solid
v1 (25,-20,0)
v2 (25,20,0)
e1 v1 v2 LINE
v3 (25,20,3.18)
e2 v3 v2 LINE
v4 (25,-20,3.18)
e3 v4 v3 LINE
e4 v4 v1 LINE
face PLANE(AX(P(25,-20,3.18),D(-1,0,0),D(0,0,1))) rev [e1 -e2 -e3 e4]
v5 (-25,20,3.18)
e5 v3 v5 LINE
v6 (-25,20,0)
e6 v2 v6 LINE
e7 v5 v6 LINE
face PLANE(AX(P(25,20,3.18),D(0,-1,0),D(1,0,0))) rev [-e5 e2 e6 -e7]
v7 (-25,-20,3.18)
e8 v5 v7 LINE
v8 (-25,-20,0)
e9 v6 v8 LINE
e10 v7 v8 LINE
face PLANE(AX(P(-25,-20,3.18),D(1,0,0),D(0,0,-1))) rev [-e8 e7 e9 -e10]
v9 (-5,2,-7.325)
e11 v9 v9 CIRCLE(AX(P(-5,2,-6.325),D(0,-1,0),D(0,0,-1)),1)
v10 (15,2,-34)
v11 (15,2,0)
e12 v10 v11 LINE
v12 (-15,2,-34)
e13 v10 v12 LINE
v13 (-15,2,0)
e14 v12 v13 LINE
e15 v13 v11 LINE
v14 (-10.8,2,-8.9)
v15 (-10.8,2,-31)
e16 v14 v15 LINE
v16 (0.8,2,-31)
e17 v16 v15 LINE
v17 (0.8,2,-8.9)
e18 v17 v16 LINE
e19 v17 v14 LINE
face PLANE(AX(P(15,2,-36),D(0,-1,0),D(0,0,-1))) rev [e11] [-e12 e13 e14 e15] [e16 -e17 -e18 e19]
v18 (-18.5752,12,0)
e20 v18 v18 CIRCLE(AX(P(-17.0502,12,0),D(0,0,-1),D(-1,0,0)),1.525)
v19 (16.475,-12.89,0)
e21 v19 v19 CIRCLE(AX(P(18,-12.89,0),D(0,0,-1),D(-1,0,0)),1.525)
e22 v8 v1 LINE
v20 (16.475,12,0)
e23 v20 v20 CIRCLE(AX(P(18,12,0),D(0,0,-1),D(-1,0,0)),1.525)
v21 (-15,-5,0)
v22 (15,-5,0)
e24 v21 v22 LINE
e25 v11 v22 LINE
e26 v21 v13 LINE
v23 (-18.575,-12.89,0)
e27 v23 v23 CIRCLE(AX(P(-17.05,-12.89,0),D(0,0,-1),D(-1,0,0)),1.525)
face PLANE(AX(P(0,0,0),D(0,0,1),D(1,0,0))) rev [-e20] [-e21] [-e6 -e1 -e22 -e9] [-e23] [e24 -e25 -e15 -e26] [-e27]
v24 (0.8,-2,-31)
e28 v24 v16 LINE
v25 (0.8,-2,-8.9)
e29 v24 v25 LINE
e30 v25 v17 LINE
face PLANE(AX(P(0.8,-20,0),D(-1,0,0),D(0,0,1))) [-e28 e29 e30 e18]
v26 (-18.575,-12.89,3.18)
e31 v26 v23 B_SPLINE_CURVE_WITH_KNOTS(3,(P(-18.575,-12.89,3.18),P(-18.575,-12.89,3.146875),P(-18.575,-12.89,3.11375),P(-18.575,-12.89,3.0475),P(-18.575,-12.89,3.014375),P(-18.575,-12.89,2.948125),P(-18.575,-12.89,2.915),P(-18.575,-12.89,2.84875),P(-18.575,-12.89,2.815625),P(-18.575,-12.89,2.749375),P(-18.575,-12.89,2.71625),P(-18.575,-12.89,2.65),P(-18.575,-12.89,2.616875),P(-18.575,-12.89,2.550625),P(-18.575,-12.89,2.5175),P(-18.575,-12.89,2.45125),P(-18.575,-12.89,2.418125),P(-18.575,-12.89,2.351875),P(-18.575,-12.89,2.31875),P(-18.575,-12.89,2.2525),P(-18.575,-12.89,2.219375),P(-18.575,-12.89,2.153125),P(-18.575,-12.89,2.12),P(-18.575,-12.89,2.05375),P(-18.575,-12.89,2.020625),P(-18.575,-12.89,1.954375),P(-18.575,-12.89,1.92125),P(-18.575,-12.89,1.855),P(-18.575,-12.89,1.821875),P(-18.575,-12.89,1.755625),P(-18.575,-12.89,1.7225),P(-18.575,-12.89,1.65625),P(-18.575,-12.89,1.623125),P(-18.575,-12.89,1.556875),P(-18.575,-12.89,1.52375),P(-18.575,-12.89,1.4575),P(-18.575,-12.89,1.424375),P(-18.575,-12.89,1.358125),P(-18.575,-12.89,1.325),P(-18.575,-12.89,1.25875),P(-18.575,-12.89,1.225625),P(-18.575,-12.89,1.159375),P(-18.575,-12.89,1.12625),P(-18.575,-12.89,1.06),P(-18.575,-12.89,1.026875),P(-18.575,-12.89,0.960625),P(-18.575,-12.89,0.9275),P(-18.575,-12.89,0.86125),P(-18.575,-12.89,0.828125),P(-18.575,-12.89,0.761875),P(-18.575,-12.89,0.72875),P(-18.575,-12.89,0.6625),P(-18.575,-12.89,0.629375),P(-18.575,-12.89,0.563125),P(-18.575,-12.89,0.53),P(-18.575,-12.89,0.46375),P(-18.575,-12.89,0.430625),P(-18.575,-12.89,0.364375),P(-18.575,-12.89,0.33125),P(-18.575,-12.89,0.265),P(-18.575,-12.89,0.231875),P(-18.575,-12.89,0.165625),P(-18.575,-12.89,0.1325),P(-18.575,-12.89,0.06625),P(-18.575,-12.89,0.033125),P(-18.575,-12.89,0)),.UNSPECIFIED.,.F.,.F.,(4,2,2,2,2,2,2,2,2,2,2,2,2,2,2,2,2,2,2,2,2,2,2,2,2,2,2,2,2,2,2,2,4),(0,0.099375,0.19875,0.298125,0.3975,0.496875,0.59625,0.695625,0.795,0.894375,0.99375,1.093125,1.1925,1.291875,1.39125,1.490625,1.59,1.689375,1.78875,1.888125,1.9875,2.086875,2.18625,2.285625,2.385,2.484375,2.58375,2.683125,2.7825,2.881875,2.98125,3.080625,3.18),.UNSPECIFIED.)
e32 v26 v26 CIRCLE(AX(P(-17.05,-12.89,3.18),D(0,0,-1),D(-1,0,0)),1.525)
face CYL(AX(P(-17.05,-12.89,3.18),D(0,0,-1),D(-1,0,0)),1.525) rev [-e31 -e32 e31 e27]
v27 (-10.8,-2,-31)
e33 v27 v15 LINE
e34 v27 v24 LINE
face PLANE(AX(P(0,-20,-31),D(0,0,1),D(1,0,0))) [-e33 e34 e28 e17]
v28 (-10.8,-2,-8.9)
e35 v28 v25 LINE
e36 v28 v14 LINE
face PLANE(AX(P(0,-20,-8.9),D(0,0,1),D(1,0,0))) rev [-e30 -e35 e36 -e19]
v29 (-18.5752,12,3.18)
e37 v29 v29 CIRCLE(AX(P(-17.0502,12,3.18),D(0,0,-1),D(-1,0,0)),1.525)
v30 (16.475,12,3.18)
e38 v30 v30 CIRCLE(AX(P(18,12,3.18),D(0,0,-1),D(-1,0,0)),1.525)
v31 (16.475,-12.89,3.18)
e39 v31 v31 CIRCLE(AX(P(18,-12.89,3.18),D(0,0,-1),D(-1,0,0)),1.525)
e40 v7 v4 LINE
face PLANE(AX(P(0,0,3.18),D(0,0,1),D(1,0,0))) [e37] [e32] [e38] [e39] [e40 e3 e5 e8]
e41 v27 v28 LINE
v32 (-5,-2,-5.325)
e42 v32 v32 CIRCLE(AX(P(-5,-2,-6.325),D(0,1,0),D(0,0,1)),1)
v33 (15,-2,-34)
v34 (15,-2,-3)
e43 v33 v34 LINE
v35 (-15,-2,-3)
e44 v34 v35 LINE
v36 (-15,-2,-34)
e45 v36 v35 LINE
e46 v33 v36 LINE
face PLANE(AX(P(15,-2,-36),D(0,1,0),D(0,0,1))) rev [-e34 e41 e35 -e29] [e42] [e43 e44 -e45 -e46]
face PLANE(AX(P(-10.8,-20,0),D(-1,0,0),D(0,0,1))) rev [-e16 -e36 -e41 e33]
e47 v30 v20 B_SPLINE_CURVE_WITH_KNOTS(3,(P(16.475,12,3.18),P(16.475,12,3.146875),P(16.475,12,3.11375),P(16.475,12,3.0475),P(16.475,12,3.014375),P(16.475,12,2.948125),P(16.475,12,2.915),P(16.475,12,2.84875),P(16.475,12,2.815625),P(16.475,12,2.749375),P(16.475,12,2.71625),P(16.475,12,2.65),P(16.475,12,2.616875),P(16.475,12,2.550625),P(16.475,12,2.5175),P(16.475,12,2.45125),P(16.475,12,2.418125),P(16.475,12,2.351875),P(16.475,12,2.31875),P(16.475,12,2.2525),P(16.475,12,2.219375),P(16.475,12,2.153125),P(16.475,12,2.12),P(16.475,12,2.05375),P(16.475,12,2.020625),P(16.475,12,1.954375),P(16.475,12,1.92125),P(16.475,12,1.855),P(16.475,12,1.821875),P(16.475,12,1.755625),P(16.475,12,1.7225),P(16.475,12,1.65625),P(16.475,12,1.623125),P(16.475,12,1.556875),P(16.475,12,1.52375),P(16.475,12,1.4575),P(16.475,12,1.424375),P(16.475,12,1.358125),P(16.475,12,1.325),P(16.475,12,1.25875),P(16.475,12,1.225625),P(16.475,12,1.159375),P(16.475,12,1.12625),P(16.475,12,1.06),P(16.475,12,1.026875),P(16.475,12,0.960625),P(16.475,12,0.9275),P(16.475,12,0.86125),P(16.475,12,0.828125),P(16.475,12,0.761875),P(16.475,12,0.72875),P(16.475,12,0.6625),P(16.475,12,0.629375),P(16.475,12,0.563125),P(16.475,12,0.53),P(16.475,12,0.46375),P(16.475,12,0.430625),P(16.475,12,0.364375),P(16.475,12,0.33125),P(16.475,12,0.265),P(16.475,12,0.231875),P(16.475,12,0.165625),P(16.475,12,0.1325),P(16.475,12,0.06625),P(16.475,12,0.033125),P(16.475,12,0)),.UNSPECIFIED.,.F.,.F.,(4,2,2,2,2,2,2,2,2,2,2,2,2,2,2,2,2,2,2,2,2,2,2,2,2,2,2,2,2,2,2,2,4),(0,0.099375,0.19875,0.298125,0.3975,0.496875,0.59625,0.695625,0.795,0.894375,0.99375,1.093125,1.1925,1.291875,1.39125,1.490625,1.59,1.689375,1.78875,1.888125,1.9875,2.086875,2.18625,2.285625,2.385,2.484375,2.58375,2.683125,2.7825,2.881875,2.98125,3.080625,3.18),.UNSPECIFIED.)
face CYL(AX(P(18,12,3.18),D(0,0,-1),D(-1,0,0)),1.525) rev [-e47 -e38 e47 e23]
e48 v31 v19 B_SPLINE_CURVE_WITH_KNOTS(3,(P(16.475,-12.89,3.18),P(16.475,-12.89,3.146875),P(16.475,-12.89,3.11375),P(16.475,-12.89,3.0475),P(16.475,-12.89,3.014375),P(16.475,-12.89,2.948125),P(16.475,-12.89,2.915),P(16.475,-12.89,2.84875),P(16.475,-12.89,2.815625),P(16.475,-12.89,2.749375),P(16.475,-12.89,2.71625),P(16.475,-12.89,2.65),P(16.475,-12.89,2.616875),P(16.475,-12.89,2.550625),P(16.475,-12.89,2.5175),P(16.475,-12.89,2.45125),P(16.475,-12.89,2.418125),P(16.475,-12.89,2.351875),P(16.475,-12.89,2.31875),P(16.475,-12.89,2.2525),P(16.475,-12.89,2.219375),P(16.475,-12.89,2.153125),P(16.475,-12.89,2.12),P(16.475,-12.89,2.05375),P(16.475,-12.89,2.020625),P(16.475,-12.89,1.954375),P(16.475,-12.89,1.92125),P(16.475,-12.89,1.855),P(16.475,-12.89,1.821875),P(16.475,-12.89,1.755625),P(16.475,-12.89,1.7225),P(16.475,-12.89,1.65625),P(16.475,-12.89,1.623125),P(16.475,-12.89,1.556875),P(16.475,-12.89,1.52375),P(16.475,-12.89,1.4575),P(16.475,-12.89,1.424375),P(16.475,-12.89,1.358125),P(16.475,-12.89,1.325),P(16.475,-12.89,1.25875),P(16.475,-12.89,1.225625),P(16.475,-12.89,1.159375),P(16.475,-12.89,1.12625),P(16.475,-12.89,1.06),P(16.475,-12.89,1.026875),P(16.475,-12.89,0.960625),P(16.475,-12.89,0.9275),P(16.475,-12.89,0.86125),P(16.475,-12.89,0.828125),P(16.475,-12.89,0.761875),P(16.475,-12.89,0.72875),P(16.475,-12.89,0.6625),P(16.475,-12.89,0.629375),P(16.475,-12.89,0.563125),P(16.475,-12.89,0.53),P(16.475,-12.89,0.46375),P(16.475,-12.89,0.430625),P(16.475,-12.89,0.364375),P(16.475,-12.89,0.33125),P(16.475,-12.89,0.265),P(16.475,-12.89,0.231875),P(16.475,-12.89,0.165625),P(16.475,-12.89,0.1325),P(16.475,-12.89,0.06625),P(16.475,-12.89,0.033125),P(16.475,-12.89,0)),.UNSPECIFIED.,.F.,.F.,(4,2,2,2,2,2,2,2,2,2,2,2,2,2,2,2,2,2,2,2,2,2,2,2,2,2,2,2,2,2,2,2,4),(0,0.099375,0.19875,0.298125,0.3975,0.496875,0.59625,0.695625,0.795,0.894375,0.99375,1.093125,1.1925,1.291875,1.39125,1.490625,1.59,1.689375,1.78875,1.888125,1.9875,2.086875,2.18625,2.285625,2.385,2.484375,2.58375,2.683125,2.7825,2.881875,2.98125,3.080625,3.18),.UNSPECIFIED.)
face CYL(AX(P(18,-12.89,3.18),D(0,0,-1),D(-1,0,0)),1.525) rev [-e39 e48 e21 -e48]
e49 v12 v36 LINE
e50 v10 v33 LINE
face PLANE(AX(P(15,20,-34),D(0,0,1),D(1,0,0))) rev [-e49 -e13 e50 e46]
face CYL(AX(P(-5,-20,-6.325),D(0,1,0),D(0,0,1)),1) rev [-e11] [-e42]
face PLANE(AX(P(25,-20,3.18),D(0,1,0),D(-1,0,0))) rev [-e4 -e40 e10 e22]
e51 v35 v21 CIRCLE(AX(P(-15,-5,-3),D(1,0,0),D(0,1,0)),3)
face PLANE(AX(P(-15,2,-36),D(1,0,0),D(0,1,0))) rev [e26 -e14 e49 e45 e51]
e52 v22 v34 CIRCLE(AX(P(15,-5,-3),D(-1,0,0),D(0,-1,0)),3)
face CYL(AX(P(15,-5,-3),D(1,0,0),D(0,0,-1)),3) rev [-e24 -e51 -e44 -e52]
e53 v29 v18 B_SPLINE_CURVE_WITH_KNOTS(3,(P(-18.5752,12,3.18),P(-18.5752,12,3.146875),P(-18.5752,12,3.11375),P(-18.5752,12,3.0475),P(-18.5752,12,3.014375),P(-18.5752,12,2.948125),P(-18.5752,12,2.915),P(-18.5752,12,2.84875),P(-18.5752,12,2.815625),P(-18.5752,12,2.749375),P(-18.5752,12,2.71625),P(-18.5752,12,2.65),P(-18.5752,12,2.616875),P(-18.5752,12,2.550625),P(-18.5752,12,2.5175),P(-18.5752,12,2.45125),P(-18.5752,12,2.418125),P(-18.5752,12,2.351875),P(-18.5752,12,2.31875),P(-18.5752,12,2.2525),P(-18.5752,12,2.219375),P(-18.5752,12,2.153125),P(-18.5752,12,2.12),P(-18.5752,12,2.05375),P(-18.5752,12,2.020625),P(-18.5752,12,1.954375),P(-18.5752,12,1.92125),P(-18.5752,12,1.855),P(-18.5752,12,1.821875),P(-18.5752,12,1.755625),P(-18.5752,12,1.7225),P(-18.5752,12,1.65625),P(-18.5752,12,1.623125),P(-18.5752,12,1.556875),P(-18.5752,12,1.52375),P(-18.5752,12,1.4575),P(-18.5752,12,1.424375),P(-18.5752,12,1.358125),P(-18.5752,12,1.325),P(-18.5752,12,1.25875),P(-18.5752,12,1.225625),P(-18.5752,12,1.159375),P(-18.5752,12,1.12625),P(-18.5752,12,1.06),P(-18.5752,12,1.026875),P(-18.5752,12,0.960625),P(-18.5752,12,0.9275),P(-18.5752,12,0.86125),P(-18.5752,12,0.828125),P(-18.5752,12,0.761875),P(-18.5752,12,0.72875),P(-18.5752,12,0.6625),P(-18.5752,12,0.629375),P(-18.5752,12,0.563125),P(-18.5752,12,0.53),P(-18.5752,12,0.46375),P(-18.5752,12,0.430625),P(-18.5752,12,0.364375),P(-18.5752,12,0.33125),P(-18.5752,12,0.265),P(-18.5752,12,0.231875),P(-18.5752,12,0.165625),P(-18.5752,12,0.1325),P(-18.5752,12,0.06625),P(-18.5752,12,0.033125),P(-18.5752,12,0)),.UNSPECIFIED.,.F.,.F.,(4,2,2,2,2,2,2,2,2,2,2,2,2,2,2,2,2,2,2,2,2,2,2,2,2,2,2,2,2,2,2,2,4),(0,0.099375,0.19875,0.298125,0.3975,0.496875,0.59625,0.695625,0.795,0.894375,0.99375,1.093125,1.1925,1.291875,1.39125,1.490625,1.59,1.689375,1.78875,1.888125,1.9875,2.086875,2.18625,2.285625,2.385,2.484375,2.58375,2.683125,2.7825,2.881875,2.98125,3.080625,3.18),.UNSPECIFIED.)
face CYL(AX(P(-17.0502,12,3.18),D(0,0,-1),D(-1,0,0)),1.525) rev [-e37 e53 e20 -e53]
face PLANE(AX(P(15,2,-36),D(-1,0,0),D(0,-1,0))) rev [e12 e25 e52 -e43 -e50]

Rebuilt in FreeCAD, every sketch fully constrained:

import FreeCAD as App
import Part
import Sketcher

V = App.Vector


def edges_at(feature, points):
    """Names of the edges that pass closest to the given points."""
    edges = feature.Shape.Edges
    near = lambda p: min(range(len(edges)), key=lambda i: edges[i].distToShape(Part.Vertex(*p))[0])
    return sorted({f"Edge{near(p) + 1}" for p in points})

doc = App.newDocument("Part")
body = doc.addObject("PartDesign::Body", "Body")

# Sketch on XY plane
sketch1 = doc.addObject("Sketcher::SketchObject", "Sketch")
body.addObject(sketch1)
sketch1.AttachmentSupport = (doc.XY_Plane, [""])
sketch1.MapMode = "FlatFace"
sketch1.addGeometry(Part.LineSegment(V(-25, 20, 0), V(-25, -20, 0)), False)
sketch1.addGeometry(Part.LineSegment(V(-25, -20, 0), V(25, -20, 0)), False)
sketch1.addGeometry(Part.LineSegment(V(25, -20, 0), V(25, 20, 0)), False)
sketch1.addGeometry(Part.LineSegment(V(25, 20, 0), V(-25, 20, 0)), False)
sketch1.addConstraint(Sketcher.Constraint("Coincident", 0, 2, 1, 1))
sketch1.addConstraint(Sketcher.Constraint("Coincident", 1, 2, 2, 1))
sketch1.addConstraint(Sketcher.Constraint("Coincident", 2, 2, 3, 1))
sketch1.addConstraint(Sketcher.Constraint("Coincident", 3, 2, 0, 1))
sketch1.addConstraint(Sketcher.Constraint("Vertical", 0))
sketch1.addConstraint(Sketcher.Constraint("Horizontal", 1))
sketch1.addConstraint(Sketcher.Constraint("Vertical", 2))
sketch1.addConstraint(Sketcher.Constraint("Horizontal", 3))
sketch1.addConstraint(Sketcher.Constraint("Symmetric", 0, 2, 2, 2, -1, 1))
sketch1.addConstraint(Sketcher.Constraint("DistanceX", 1, 1, 1, 2, 50.0))
sketch1.addConstraint(Sketcher.Constraint("DistanceY", 0, 2, 0, 1, 40.0))
pad1 = doc.addObject("PartDesign::Pad", "Pad")
body.addObject(pad1)
pad1.Profile = sketch1
pad1.Length = 3.18

# Sketch on XY plane
sketch2 = doc.addObject("Sketcher::SketchObject", "Sketch001")
body.addObject(sketch2)
sketch2.AttachmentSupport = (doc.XY_Plane, [""])
sketch2.MapMode = "FlatFace"
sketch2.addGeometry(Part.LineSegment(V(15, 2, 0), V(15, -2, 0)), False)
sketch2.addGeometry(Part.LineSegment(V(15, -2, 0), V(-15, -2, 0)), False)
sketch2.addGeometry(Part.LineSegment(V(-15, -2, 0), V(-15, 2, 0)), False)
sketch2.addGeometry(Part.LineSegment(V(-15, 2, 0), V(15, 2, 0)), False)
sketch2.addConstraint(Sketcher.Constraint("Coincident", 0, 2, 1, 1))
sketch2.addConstraint(Sketcher.Constraint("Coincident", 1, 2, 2, 1))
sketch2.addConstraint(Sketcher.Constraint("Coincident", 2, 2, 3, 1))
sketch2.addConstraint(Sketcher.Constraint("Coincident", 3, 2, 0, 1))
sketch2.addConstraint(Sketcher.Constraint("Vertical", 0))
sketch2.addConstraint(Sketcher.Constraint("Horizontal", 1))
sketch2.addConstraint(Sketcher.Constraint("Vertical", 2))
sketch2.addConstraint(Sketcher.Constraint("Horizontal", 3))
sketch2.addConstraint(Sketcher.Constraint("Symmetric", 0, 2, 2, 2, -1, 1))
sketch2.addConstraint(Sketcher.Constraint("DistanceX", 1, 2, 1, 1, 30.0))
sketch2.addConstraint(Sketcher.Constraint("DistanceY", 0, 2, 0, 1, 4.0))
pad2 = doc.addObject("PartDesign::Pad", "Pad001")
body.addObject(pad2)
pad2.Profile = sketch2
pad2.Length = 36
pad2.Reversed = True

# Sketch on XZ plane
sketch3 = doc.addObject("Sketcher::SketchObject", "Sketch002")
body.addObject(sketch3)
sketch3.AttachmentSupport = (doc.XZ_Plane, [""])
sketch3.MapMode = "FlatFace"
sketch3.AttachmentOffset = App.Placement(V(0, 0, -2), App.Rotation())
sketch3.addGeometry(Part.LineSegment(V(-10.8, -31, 0), V(-10.8, -8.9, 0)), False)
sketch3.addGeometry(Part.LineSegment(V(-10.8, -8.9, 0), V(0.8, -8.9, 0)), False)
sketch3.addGeometry(Part.LineSegment(V(0.8, -8.9, 0), V(0.8, -31, 0)), False)
sketch3.addGeometry(Part.LineSegment(V(0.8, -31, 0), V(-10.8, -31, 0)), False)
sketch3.addGeometry(Part.Circle(V(-5, -6.325, 0), V(0, 0, 1), 1), False)
sketch3.addConstraint(Sketcher.Constraint("Coincident", 0, 2, 1, 1))
sketch3.addConstraint(Sketcher.Constraint("Coincident", 1, 2, 2, 1))
sketch3.addConstraint(Sketcher.Constraint("Coincident", 2, 2, 3, 1))
sketch3.addConstraint(Sketcher.Constraint("Coincident", 3, 2, 0, 1))
sketch3.addConstraint(Sketcher.Constraint("Vertical", 0))
sketch3.addConstraint(Sketcher.Constraint("Horizontal", 1))
sketch3.addConstraint(Sketcher.Constraint("Vertical", 2))
sketch3.addConstraint(Sketcher.Constraint("Horizontal", 3))
sketch3.addConstraint(Sketcher.Constraint("Diameter", 4, 2.0))
sketch3.addConstraint(Sketcher.Constraint("DistanceX", 1, 1, 1, 2, 11.6))
sketch3.addConstraint(Sketcher.Constraint("DistanceY", 0, 1, 0, 2, 22.1))
sketch3.addConstraint(Sketcher.Constraint("DistanceX", 4, 3, -1, 1, 5.0))
sketch3.addConstraint(Sketcher.Constraint("DistanceY", 2, 2, -1, 1, 31.0))
sketch3.addConstraint(Sketcher.Constraint("DistanceX", 0, 2, -1, 1, 10.8))
sketch3.addConstraint(Sketcher.Constraint("DistanceY", 4, 3, -1, 1, 6.325))
pocket1 = doc.addObject("PartDesign::Pocket", "Pocket")
body.addObject(pocket1)
pocket1.Profile = sketch3
pocket1.Type = "ThroughAll"
pocket1.Midplane = True

# Sketch on XY plane
sketch4 = doc.addObject("Sketcher::SketchObject", "Sketch003")
body.addObject(sketch4)
sketch4.AttachmentSupport = (doc.XY_Plane, [""])
sketch4.MapMode = "FlatFace"
sketch4.addGeometry(Part.Circle(V(18, 12, 0), V(0, 0, 1), 1.525), False)
sketch4.addGeometry(Part.Circle(V(-17.0502, 12, 0), V(0, 0, 1), 1.525), False)
sketch4.addGeometry(Part.Circle(V(-17.05, -12.89, 0), V(0, 0, 1), 1.525), False)
sketch4.addGeometry(Part.Circle(V(18, -12.89, 0), V(0, 0, 1), 1.525), False)
sketch4.addConstraint(Sketcher.Constraint("Equal", 0, 1))
sketch4.addConstraint(Sketcher.Constraint("Equal", 1, 2))
sketch4.addConstraint(Sketcher.Constraint("Equal", 2, 3))
sketch4.addConstraint(Sketcher.Constraint("Horizontal", 0, 3, 1, 3))
sketch4.addConstraint(Sketcher.Constraint("Horizontal", 2, 3, 3, 3))
sketch4.addConstraint(Sketcher.Constraint("Vertical", 0, 3, 3, 3))
sketch4.addConstraint(Sketcher.Constraint("Diameter", 0, 3.05))
sketch4.addConstraint(Sketcher.Constraint("DistanceX", -1, 1, 0, 3, 18.0))
sketch4.addConstraint(Sketcher.Constraint("DistanceY", -1, 1, 0, 3, 12.0))
sketch4.addConstraint(Sketcher.Constraint("DistanceX", 2, 3, -1, 1, 17.05))
sketch4.addConstraint(Sketcher.Constraint("DistanceY", 2, 3, -1, 1, 12.89))
sketch4.addConstraint(Sketcher.Constraint("DistanceX", 1, 3, -1, 1, 17.0502))
pocket2 = doc.addObject("PartDesign::Pocket", "Pocket001")
body.addObject(pocket2)
pocket2.Profile = sketch4
pocket2.Type = "ThroughAll"
pocket2.Reversed = True
doc.recompute()

fillet = doc.addObject("PartDesign::Fillet", "Fillet")
body.addObject(fillet)
fillet.Base = (pocket2, edges_at(pocket2, [(0, -2, 0)]))
fillet.Radius = 3

# Sketch on XZ plane
sketch5 = doc.addObject("Sketcher::SketchObject", "Sketch004")
body.addObject(sketch5)
sketch5.AttachmentSupport = (doc.XZ_Plane, [""])
sketch5.MapMode = "FlatFace"
sketch5.AttachmentOffset = App.Placement(V(0, 0, 2), App.Rotation())
sketch5.addGeometry(Part.LineSegment(V(-15, -34, 0), V(-15, -36, 0)), False)
sketch5.addGeometry(Part.LineSegment(V(-15, -36, 0), V(15, -36, 0)), False)
sketch5.addGeometry(Part.LineSegment(V(15, -36, 0), V(15, -34, 0)), False)
sketch5.addGeometry(Part.LineSegment(V(15, -34, 0), V(-15, -34, 0)), False)
sketch5.addConstraint(Sketcher.Constraint("Coincident", 0, 2, 1, 1))
sketch5.addConstraint(Sketcher.Constraint("Coincident", 1, 2, 2, 1))
sketch5.addConstraint(Sketcher.Constraint("Coincident", 2, 2, 3, 1))
sketch5.addConstraint(Sketcher.Constraint("Coincident", 3, 2, 0, 1))
sketch5.addConstraint(Sketcher.Constraint("Vertical", 0))
sketch5.addConstraint(Sketcher.Constraint("Horizontal", 1))
sketch5.addConstraint(Sketcher.Constraint("Vertical", 2))
sketch5.addConstraint(Sketcher.Constraint("Horizontal", 3))
sketch5.addConstraint(Sketcher.Constraint("DistanceX", 1, 1, 1, 2, 30.0))
sketch5.addConstraint(Sketcher.Constraint("DistanceY", 0, 2, 0, 1, 2.0))
sketch5.addConstraint(Sketcher.Constraint("DistanceX", 0, 2, -1, 1, 15.0))
sketch5.addConstraint(Sketcher.Constraint("DistanceY", 0, 2, -1, 1, 36.0))
pocket3 = doc.addObject("PartDesign::Pocket", "Pocket002")
body.addObject(pocket3)
pocket3.Profile = sketch5
pocket3.Type = "ThroughAll"

doc.recompute()
